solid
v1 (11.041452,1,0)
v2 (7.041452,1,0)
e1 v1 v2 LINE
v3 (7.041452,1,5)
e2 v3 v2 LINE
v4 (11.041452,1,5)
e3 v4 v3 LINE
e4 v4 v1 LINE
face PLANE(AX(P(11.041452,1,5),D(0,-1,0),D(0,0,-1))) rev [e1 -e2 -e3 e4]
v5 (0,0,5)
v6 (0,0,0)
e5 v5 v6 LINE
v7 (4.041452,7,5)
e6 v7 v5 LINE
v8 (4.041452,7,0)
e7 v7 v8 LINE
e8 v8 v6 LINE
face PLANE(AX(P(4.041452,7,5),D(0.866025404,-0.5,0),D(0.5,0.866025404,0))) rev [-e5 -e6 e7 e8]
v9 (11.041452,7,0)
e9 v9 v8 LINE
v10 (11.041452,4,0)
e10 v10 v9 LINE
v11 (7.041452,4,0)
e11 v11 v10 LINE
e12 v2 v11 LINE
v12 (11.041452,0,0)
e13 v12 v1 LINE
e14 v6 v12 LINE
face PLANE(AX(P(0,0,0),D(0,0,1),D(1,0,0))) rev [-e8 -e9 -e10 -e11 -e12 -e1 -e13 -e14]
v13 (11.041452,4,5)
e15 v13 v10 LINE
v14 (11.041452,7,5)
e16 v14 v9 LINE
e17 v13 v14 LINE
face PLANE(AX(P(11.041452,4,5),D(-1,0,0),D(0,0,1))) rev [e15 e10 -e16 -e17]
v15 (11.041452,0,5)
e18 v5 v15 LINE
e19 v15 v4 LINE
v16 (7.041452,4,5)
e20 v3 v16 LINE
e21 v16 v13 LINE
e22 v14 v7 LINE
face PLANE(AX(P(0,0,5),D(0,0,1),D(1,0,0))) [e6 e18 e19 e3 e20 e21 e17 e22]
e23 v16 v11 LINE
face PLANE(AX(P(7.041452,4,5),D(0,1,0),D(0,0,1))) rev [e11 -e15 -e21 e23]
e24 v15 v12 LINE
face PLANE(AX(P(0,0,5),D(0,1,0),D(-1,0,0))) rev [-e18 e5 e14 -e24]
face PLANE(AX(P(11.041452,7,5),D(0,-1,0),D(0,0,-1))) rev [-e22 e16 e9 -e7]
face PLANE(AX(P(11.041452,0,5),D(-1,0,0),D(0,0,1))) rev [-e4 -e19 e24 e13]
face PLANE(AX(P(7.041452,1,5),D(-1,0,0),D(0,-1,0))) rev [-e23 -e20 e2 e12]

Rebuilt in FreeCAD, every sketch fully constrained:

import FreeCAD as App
import Part
import Sketcher
from FreeCAD import Vector
Q = App.Units.Quantity

doc = App.newDocument("Part")
body = doc.addObject("PartDesign::Body", "Body")

# Sketch on XY plane
sketch1 = doc.addObject("Sketcher::SketchObject", "Sketch")
body.addObject(sketch1)
sketch1.AttachmentSupport = (doc.XY_Plane, [""])
sketch1.MapMode = "FlatFace"
sketch1.addGeometry([
    Part.LineSegment(Vector(11.041452, 7, 0), Vector(4.041452, 7, 0)),  # 0
    Part.LineSegment(Vector(4.041452, 7, 0), Vector(0, 0, 0)),  # 1
    Part.LineSegment(Vector(0, 0, 0), Vector(11.041452, 0, 0)),  # 2
    Part.LineSegment(Vector(11.041452, 0, 0), Vector(11.041452, 1, 0)),  # 3
    Part.LineSegment(Vector(11.041452, 1, 0), Vector(7.041452, 1, 0)),  # 4
    Part.LineSegment(Vector(7.041452, 1, 0), Vector(7.041452, 4, 0)),  # 5
    Part.LineSegment(Vector(7.041452, 4, 0), Vector(11.041452, 4, 0)),  # 6
    Part.LineSegment(Vector(11.041452, 4, 0), Vector(11.041452, 7, 0)),  # 7
], False)
sketch1.addConstraint([
    Sketcher.Constraint("Coincident", 0, 2, 1, 1),
    Sketcher.Constraint("Coincident", 1, 2, 2, 1),
    Sketcher.Constraint("Coincident", 2, 2, 3, 1),
    Sketcher.Constraint("Coincident", 3, 2, 4, 1),
    Sketcher.Constraint("Coincident", 4, 2, 5, 1),
    Sketcher.Constraint("Coincident", 5, 2, 6, 1),
    Sketcher.Constraint("Coincident", 6, 2, 7, 1),
    Sketcher.Constraint("Coincident", 7, 2, 0, 1),
    Sketcher.Constraint("Horizontal", 0),
    Sketcher.Constraint("Horizontal", 2),
    Sketcher.Constraint("Vertical", 3),
    Sketcher.Constraint("Horizontal", 4),
    Sketcher.Constraint("Vertical", 5),
    Sketcher.Constraint("Horizontal", 6),
    Sketcher.Constraint("Vertical", 7),
    Sketcher.Constraint("Coincident", 1, 2, -1, 1),
    Sketcher.Constraint("Vertical", 3, 2, 6, 2),
    Sketcher.Constraint("Equal", 5, 7),
    Sketcher.Constraint("DistanceX", 0, 2, 0, 1, Q("7 mm")),
    Sketcher.Constraint("DistanceX", 4, 2, 4, 1, Q("4 mm")),
    Sketcher.Constraint("DistanceY", 3, 1, 3, 2, Q("1 mm")),
    Sketcher.Constraint("DistanceY", 5, 1, 5, 2, Q("3 mm")),
    Sketcher.Constraint("Angle", 1, Q("-120 deg")),
])
pad1 = doc.addObject("PartDesign::Pad", "Pad")
body.addObject(pad1)
pad1.Profile = sketch1
pad1.Length = 5

doc.recompute()
